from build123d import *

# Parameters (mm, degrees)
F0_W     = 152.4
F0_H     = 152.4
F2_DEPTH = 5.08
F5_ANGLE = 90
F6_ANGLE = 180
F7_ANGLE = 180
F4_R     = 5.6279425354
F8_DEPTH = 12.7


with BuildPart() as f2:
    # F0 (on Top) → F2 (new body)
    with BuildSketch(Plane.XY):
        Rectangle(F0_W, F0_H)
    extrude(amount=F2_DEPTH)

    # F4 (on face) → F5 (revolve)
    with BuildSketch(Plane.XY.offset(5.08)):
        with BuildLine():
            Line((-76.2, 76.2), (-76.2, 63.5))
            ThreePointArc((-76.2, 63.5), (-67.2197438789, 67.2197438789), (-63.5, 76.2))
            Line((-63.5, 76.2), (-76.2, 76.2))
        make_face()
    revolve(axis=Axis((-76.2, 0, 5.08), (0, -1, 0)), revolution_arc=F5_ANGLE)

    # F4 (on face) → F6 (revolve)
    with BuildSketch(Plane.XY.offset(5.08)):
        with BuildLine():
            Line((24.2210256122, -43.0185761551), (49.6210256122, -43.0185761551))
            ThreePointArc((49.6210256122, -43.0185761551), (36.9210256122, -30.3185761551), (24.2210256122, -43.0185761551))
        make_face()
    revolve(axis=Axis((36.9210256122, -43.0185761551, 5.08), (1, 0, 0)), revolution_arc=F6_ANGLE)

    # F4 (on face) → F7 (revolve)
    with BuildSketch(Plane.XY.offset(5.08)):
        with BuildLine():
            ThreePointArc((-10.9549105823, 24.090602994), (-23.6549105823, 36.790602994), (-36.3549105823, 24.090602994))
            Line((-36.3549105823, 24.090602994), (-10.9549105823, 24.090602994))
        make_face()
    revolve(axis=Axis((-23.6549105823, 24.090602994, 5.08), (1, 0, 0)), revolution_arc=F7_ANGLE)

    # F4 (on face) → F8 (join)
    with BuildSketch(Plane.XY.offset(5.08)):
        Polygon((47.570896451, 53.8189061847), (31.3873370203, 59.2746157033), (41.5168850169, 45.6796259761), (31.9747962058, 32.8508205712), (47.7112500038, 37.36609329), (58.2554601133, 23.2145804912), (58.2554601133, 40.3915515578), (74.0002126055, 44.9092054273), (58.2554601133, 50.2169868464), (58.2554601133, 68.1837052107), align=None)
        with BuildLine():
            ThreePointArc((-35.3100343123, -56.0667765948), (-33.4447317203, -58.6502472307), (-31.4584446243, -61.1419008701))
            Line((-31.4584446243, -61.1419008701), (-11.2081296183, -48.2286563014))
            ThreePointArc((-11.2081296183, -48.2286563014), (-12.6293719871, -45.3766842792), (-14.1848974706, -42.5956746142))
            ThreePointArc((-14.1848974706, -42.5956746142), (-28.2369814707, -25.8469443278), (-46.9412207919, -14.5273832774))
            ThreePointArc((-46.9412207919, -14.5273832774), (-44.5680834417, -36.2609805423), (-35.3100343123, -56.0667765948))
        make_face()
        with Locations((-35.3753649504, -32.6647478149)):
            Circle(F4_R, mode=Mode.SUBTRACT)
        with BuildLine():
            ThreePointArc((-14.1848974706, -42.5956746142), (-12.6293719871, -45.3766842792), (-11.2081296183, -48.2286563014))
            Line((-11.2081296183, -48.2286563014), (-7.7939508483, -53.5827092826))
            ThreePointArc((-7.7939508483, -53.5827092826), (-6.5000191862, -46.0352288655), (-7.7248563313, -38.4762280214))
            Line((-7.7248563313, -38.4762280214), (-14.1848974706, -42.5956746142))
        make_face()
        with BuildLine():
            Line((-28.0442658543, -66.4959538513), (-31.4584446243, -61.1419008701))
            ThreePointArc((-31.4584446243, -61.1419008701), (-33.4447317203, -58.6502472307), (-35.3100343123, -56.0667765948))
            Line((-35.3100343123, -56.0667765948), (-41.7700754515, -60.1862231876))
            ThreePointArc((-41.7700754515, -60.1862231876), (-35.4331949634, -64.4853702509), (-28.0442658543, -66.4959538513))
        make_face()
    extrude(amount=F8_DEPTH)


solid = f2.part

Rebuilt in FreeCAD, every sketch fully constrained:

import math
import FreeCAD as App
import Part
import Sketcher

V = App.Vector
Q = App.Units.Quantity

doc = App.newDocument("Part")
body = doc.addObject("PartDesign::Body", "Body")

sketch1 = body.newObject("Sketcher::SketchObject", "Sketch")
sketch1.AttachmentSupport = (doc.getObject("XY_Plane"), [""])
sketch1.MapMode = "FlatFace"
sketch1.addGeometry(Part.LineSegment(V(-76, 76, 0), V(-76, -76, 0)), False)
sketch1.addGeometry(Part.LineSegment(V(-76, -76, 0), V(76, -76, 0)), False)
sketch1.addGeometry(Part.LineSegment(V(76, -76, 0), V(76, 76, 0)), False)
sketch1.addGeometry(Part.LineSegment(V(76, 76, 0), V(-76, 76, 0)), False)
sketch1.addConstraint(Sketcher.Constraint("Coincident", 0, 2, 1, 1))
sketch1.addConstraint(Sketcher.Constraint("Coincident", 1, 2, 2, 1))
sketch1.addConstraint(Sketcher.Constraint("Coincident", 2, 2, 3, 1))
sketch1.addConstraint(Sketcher.Constraint("Coincident", 3, 2, 0, 1))
sketch1.addConstraint(Sketcher.Constraint("Vertical", 0))
sketch1.addConstraint(Sketcher.Constraint("Horizontal", 1))
sketch1.addConstraint(Sketcher.Constraint("Vertical", 2))
sketch1.addConstraint(Sketcher.Constraint("Horizontal", 3))
sketch1.addConstraint(Sketcher.Constraint("Symmetric", 0, 2, 2, 2, -1, 1))
sketch1.addConstraint(Sketcher.Constraint("Equal", 3, 0))
sketch1.addConstraint(Sketcher.Constraint("DistanceX", 1, 1, 1, 2, Q("6 in")))
pad1 = body.newObject("PartDesign::Pad", "Pad")
pad1.Profile = sketch1
pad1.Length = Q("0.2 in")

sketch2 = body.newObject("Sketcher::SketchObject", "Sketch001")
sketch2.AttachmentSupport = (doc.getObject("XY_Plane"), [""])
sketch2.MapMode = "FlatFace"
sketch2.AttachmentOffset = App.Placement(V(0, 0, 0.2 * 25.4), App.Rotation())
sketch2.addGeometry(Part.LineSegment(V(-76, 76, 0), V(-76, 64, 0)), False)
sketch2.addGeometry(Part.ArcOfCircle(Part.Circle(V(-76, 76, 0), V(0, 0, 1), 13), math.radians(-90), math.radians(0)), False)
sketch2.addGeometry(Part.LineSegment(V(-64, 76, 0), V(-76, 76, 0)), False)
sketch2.addGeometry(Part.LineSegment(V(-76, 76, 0), V(-76, 64, 0)), True)
sketch2.addConstraint(Sketcher.Constraint("Coincident", 0, 2, 1, 1))
sketch2.addConstraint(Sketcher.Constraint("Coincident", 1, 2, 2, 1))
sketch2.addConstraint(Sketcher.Constraint("Coincident", 2, 2, 0, 1))
sketch2.addConstraint(Sketcher.Constraint("Vertical", 0))
sketch2.addConstraint(Sketcher.Constraint("Horizontal", 2))
sketch2.addConstraint(Sketcher.Constraint("Vertical", 3))
sketch2.addConstraint(Sketcher.Constraint("Coincident", 2, 2, 1, 3))
sketch2.addConstraint(Sketcher.Constraint("Coincident", 3, 1, 1, 3))
sketch2.addConstraint(Sketcher.Constraint("Equal", 0, 3))
sketch2.addConstraint(Sketcher.Constraint("Radius", 1, Q("0.5 in")))
sketch2.addConstraint(Sketcher.Constraint("DistanceX", 1, 3, -1, 1, Q("3 in")))
sketch2.addConstraint(Sketcher.Constraint("DistanceY", -1, 1, 1, 3, Q("3 in")))
revolution = body.newObject("PartDesign::Revolution", "Revolution")
revolution.Profile = sketch2
revolution.ReferenceAxis = (sketch2, ["Axis0"])
revolution.Angle = 90

sketch3 = body.newObject("Sketcher::SketchObject", "Sketch002")
sketch3.AttachmentSupport = (doc.getObject("XY_Plane"), [""])
sketch3.MapMode = "FlatFace"
sketch3.AttachmentOffset = App.Placement(V(0, 0, 0.2 * 25.4), App.Rotation())
sketch3.addGeometry(Part.LineSegment(V(24, -43, 0), V(50, -43, 0)), False)
sketch3.addGeometry(Part.ArcOfCircle(Part.Circle(V(37, -43, 0), V(0, 0, 1), 13), math.radians(0), math.radians(180)), False)
sketch3.addGeometry(Part.LineSegment(V(24, -43, 0), V(50, -43, 0)), True)
sketch3.addConstraint(Sketcher.Constraint("Coincident", 0, 1, 1, 2))
sketch3.addConstraint(Sketcher.Constraint("Coincident", 1, 1, 0, 2))
sketch3.addConstraint(Sketcher.Constraint("Horizontal", 0))
sketch3.addConstraint(Sketcher.Constraint("Horizontal", 2))
sketch3.addConstraint(Sketcher.Constraint("Coincident", 2, 1, 0, 1))
sketch3.addConstraint(Sketcher.Constraint("Horizontal", 1, 3, 0, 1))
sketch3.addConstraint(Sketcher.Constraint("Equal", 0, 2))
sketch3.addConstraint(Sketcher.Constraint("Radius", 1, Q("0.5 in")))
sketch3.addConstraint(Sketcher.Constraint("DistanceX", -1, 1, 1, 3, 36.921026))
sketch3.addConstraint(Sketcher.Constraint("DistanceY", 1, 3, -1, 1, 43.018576))
revolution2 = body.newObject("PartDesign::Revolution", "Revolution001")
revolution2.Profile = sketch3
revolution2.ReferenceAxis = (sketch3, ["Axis0"])
revolution2.Angle = 180

sketch4 = body.newObject("Sketcher::SketchObject", "Sketch003")
sketch4.AttachmentSupport = (doc.getObject("XY_Plane"), [""])
sketch4.MapMode = "FlatFace"
sketch4.AttachmentOffset = App.Placement(V(0, 0, 0.2 * 25.4), App.Rotation())
sketch4.addGeometry(Part.ArcOfCircle(Part.Circle(V(-24, 24, 0), V(0, 0, 1), 13), math.radians(0), math.radians(180)), False)
sketch4.addGeometry(Part.LineSegment(V(-36, 24, 0), V(-11, 24, 0)), False)
sketch4.addGeometry(Part.LineSegment(V(-36, 24, 0), V(-11, 24, 0)), True)
sketch4.addConstraint(Sketcher.Constraint("Coincident", 0, 1, 1, 2))
sketch4.addConstraint(Sketcher.Constraint("Coincident", 1, 1, 0, 2))
sketch4.addConstraint(Sketcher.Constraint("Horizontal", 1))
sketch4.addConstraint(Sketcher.Constraint("Horizontal", 2))
sketch4.addConstraint(Sketcher.Constraint("Coincident", 2, 1, 1, 1))
sketch4.addConstraint(Sketcher.Constraint("Equal", 1, 2))
sketch4.addConstraint(Sketcher.Constraint("Radius", 0, Q("0.5 in")))
sketch4.addConstraint(Sketcher.Constraint("DistanceX", 0, 3, -1, 1, 23.654911))
sketch4.addConstraint(Sketcher.Constraint("DistanceY", -1, 1, 0, 3, 24.090603))
sketch4.addConstraint(Sketcher.Constraint("DistanceY", -1, 1, 0, 1, 24.090603))
revolution3 = body.newObject("PartDesign::Revolution", "Revolution002")
revolution3.Profile = sketch4
revolution3.ReferenceAxis = (sketch4, ["Axis0"])
revolution3.Angle = 180

sketch5 = body.newObject("Sketcher::SketchObject", "Sketch004")
sketch5.AttachmentSupport = (doc.getObject("XY_Plane"), [""])
sketch5.MapMode = "FlatFace"
sketch5.AttachmentOffset = App.Placement(V(0, 0, 0.2 * 25.4), App.Rotation())
sketch5.addGeometry(Part.LineSegment(V(48, 54, 0), V(31, 59, 0)), False)
sketch5.addGeometry(Part.LineSegment(V(31, 59, 0), V(42, 46, 0)), False)
sketch5.addGeometry(Part.LineSegment(V(42, 46, 0), V(32, 33, 0)), False)
sketch5.addGeometry(Part.LineSegment(V(32, 33, 0), V(48, 37, 0)), False)
sketch5.addGeometry(Part.LineSegment(V(48, 37, 0), V(58, 23, 0)), False)
sketch5.addGeometry(Part.LineSegment(V(58, 23, 0), V(58, 40, 0)), False)
sketch5.addGeometry(Part.LineSegment(V(58, 40, 0), V(74, 45, 0)), False)
sketch5.addGeometry(Part.LineSegment(V(74, 45, 0), V(58, 50, 0)), False)
sketch5.addGeometry(Part.LineSegment(V(58, 50, 0), V(58, 68, 0)), False)
sketch5.addGeometry(Part.LineSegment(V(58, 68, 0), V(48, 54, 0)), False)
sketch5.addGeometry(Part.LineSegment(V(-31, -61, 0), V(-11, -48, 0)), False)
sketch5.addGeometry(Part.LineSegment(V(-11, -48, 0), V(-8, -54, 0)), False)
sketch5.addGeometry(Part.ArcOfCircle(Part.Circle(V(-30, -46, 0), V(0, 0, 1), 23), math.radians(-19), math.radians(19)), False)
sketch5.addGeometry(Part.LineSegment(V(-8, -38, 0), V(-14, -43, 0)), False)
sketch5.addGeometry(Part.ArcOfCircle(Part.Circle(V(-72, -77, 0), V(0, 0, 1), 67), math.radians(31), math.radians(68)), False)
sketch5.addGeometry(Part.ArcOfCircle(Part.Circle(V(20, -18, 0), V(0, 0, 1), 67), math.radians(177), math.radians(214)), False)
sketch5.addGeometry(Part.LineSegment(V(-35, -56, 0), V(-42, -60, 0)), False)
sketch5.addGeometry(Part.ArcOfCircle(Part.Circle(V(-26, -43, 0), V(0, 0, 1), 23), math.radians(-134), math.radians(-96)), False)
sketch5.addGeometry(Part.LineSegment(V(-28, -66, 0), V(-31, -61, 0)), False)
sketch5.addGeometry(Part.Circle(V(-35, -33, 0), V(0, 0, 1), 6), False)
sketch5.addConstraint(Sketcher.Constraint("Coincident", 0, 2, 1, 1))
sketch5.addConstraint(Sketcher.Constraint("Coincident", 1, 2, 2, 1))
sketch5.addConstraint(Sketcher.Constraint("Coincident", 2, 2, 3, 1))
sketch5.addConstraint(Sketcher.Constraint("Coincident", 3, 2, 4, 1))
sketch5.addConstraint(Sketcher.Constraint("Coincident", 4, 2, 5, 1))
sketch5.addConstraint(Sketcher.Constraint("Coincident", 5, 2, 6, 1))
sketch5.addConstraint(Sketcher.Constraint("Coincident", 6, 2, 7, 1))
sketch5.addConstraint(Sketcher.Constraint("Coincident", 7, 2, 8, 1))
sketch5.addConstraint(Sketcher.Constraint("Coincident", 8, 2, 9, 1))
sketch5.addConstraint(Sketcher.Constraint("Coincident", 9, 2, 0, 1))
sketch5.addConstraint(Sketcher.Constraint("Coincident", 10, 2, 11, 1))
sketch5.addConstraint(Sketcher.Constraint("Coincident", 11, 2, 12, 1))
sketch5.addConstraint(Sketcher.Constraint("Coincident", 12, 2, 13, 1))
sketch5.addConstraint(Sketcher.Constraint("Coincident", 13, 2, 14, 1))
sketch5.addConstraint(Sketcher.Constraint("Coincident", 14, 2, 15, 1))
sketch5.addConstraint(Sketcher.Constraint("Coincident", 15, 2, 16, 1))
sketch5.addConstraint(Sketcher.Constraint("Coincident", 16, 2, 17, 1))
sketch5.addConstraint(Sketcher.Constraint("Coincident", 17, 2, 18, 1))
sketch5.addConstraint(Sketcher.Constraint("Coincident", 18, 2, 10, 1))
sketch5.addConstraint(Sketcher.Constraint("Vertical", 5))
sketch5.addConstraint(Sketcher.Constraint("Vertical", 8))
sketch5.addConstraint(Sketcher.Constraint("Equal", 14, 15))
sketch5.addConstraint(Sketcher.Constraint("Equal", 12, 17))
sketch5.addConstraint(Sketcher.Constraint("Parallel", 1, 4))
sketch5.addConstraint(Sketcher.Constraint("Parallel", 3, 6))
sketch5.addConstraint(Sketcher.Constraint("Parallel", 0, 7))
sketch5.addConstraint(Sketcher.Constraint("Parallel", 2, 9))
sketch5.addConstraint(Sketcher.Constraint("Perpendicular", 10, 11))
sketch5.addConstraint(Sketcher.Constraint("Perpendicular", 11, 13))
sketch5.addConstraint(Sketcher.Constraint("Parallel", 13, 16))
sketch5.addConstraint(Sketcher.Constraint("Perpendicular", 16, 18))
sketch5.addConstraint(Sketcher.Constraint("Vertical", 5, 2, 7, 2))
sketch5.addConstraint(Sketcher.Constraint("Equal", 13, 16))
sketch5.addConstraint(Sketcher.Constraint("Equal", 11, 18))
sketch5.addConstraint(Sketcher.Constraint("Distance", 11, Q("0.25 in")))
sketch5.addConstraint(Sketcher.Constraint("Diameter", 19, 11.255885))
sketch5.addConstraint(Sketcher.Constraint("Radius", 12, 23.280464))
sketch5.addConstraint(Sketcher.Constraint("Radius", 14, 66.853157))
sketch5.addConstraint(Sketcher.Constraint("DistanceY", 12, 3, 17, 3, Q("0.1022 in")))
sketch5.addConstraint(Sketcher.Constraint("DistanceX", 0, 2, 4, 2, Q("1.0578001 in")))
sketch5.addConstraint(Sketcher.Constraint("DistanceY", 5, 1, 5, 2, 17.176971))
sketch5.addConstraint(Sketcher.Constraint("DistanceY", 8, 1, 8, 2, 17.966718))
sketch5.addConstraint(Sketcher.Constraint("DistanceY", 18, 2, -1, 1, 61.141901))
sketch5.addConstraint(Sketcher.Constraint("DistanceY", 12, 3, 19, 3, 13.264001))
sketch5.addConstraint(Sketcher.Constraint("DistanceX", 15, 3, 0, 2, 11.578299))
sketch5.addConstraint(Sketcher.Constraint("DistanceX", 19, 3, 0, 2, 66.762702))
sketch5.addConstraint(Sketcher.Constraint("DistanceY", 6, 2, 8, 2, 23.2745))
sketch5.addConstraint(Sketcher.Constraint("DistanceY", 15, 2, 13, 2, 13.471102))
sketch5.addConstraint(Sketcher.Constraint("Distance", 0, 17.078418))
sketch5.addConstraint(Sketcher.Constraint("Distance", 3, 16.371428))
sketch5.addConstraint(Sketcher.Constraint("Distance", 6, 16.380062))
sketch5.addConstraint(Sketcher.Constraint("Distance", 9, 17.902719))
sketch5.addConstraint(Sketcher.Constraint("Distance", 13, 7.661721))
sketch5.addConstraint(Sketcher.Constraint("DistanceX", 12, 3, -1, 1, 29.78024))
sketch5.addConstraint(Sketcher.Constraint("DistanceY", 12, 3, -1, 1, 45.928749))
sketch5.addConstraint(Sketcher.Constraint("DistanceX", -1, 1, 15, 3, 19.809038))
sketch5.addConstraint(Sketcher.Constraint("DistanceY", -1, 1, 2, 2, 32.850821))
sketch5.addConstraint(Sketcher.Constraint("DistanceX", -1, 1, 3, 2, 47.71125))
sketch5.addConstraint(Sketcher.Constraint("DistanceY", -1, 1, 4, 2, 23.21458))
sketch5.addConstraint(Sketcher.Constraint("DistanceX", 10, 2, -1, 1, 11.20813))
sketch5.addConstraint(Sketcher.Constraint("DistanceX", 11, 2, -1, 1, 7.793951))
sketch5.addConstraint(Sketcher.Constraint("DistanceY", 12, 2, -1, 1, 38.476228))
sketch5.addConstraint(Sketcher.Constraint("DistanceY", 14, 3, 12, 3, 30.683448))
sketch5.addConstraint(Sketcher.Constraint("DistanceY", 15, 3, 0, 2, 77.50976))
pad2 = body.newObject("PartDesign::Pad", "Pad001")
pad2.Profile = sketch5
pad2.Length = Q("0.5 in")

doc.recompute()
